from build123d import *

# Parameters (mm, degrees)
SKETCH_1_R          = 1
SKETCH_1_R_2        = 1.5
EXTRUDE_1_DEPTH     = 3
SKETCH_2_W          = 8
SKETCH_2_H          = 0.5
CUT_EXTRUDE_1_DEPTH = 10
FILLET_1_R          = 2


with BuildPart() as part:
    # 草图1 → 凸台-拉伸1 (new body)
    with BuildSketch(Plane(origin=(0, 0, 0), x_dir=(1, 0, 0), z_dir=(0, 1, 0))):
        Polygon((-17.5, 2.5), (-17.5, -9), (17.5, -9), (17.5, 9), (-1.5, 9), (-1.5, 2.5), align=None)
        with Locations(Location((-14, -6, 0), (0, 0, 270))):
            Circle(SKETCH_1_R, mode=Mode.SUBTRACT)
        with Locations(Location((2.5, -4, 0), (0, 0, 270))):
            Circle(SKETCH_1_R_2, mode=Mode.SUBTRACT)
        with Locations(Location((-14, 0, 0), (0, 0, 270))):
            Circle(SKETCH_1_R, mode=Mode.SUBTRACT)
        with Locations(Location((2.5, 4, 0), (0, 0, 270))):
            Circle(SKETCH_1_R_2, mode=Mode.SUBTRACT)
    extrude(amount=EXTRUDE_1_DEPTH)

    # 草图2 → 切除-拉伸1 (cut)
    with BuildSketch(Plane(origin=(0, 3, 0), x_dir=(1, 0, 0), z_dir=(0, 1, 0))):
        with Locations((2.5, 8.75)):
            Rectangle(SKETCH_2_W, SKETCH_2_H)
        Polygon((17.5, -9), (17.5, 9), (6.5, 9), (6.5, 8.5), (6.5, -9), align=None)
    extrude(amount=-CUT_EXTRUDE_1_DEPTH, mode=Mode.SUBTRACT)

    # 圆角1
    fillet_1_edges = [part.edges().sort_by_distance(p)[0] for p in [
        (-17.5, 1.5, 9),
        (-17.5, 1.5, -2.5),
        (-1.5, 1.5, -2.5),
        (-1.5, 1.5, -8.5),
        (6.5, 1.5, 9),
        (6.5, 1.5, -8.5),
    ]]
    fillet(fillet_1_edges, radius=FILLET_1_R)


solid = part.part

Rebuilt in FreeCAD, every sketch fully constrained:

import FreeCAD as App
import Part
import Sketcher

V = App.Vector


def edges_at(feature, points):
    """Names of the edges that pass closest to the given points."""
    edges = feature.Shape.Edges
    near = lambda p: min(range(len(edges)), key=lambda i: edges[i].distToShape(Part.Vertex(*p))[0])
    return sorted({f"Edge{near(p) + 1}" for p in points})


def add_polygon(sketch, points):
    """Adds a closed chain of lines whose ends are joined by coincident constraints."""
    first, n = sketch.GeometryCount, len(points)
    for a, b in zip(points, points[1:] + points[:1]):
        sketch.addGeometry(Part.LineSegment(App.Vector(*a, 0), App.Vector(*b, 0)), False)
    for i in range(n):
        sketch.addConstraint(Sketcher.Constraint("Coincident", first + i, 2, first + (i + 1) % n, 1))

doc = App.newDocument("Part")
body = doc.addObject("PartDesign::Body", "Body")

sketch1 = doc.addObject("Sketcher::SketchObject", "Sketch")
body.addObject(sketch1)
sketch1.AttachmentSupport = (doc.XZ_Plane, [""])
sketch1.MapMode = "FlatFace"
add_polygon(sketch1, [(-17.5, -2.5), (-17.5, 9), (17.5, 9), (17.5, -9), (-1.5, -9), (-1.5, -2.5)])
sketch1.addGeometry(Part.Circle(V(-14, 6, 0), V(0, 0, 1), 1), False)
sketch1.addGeometry(Part.Circle(V(2.5, 4, 0), V(0, 0, 1), 1.5), False)
sketch1.addGeometry(Part.Circle(V(-14, 0, 0), V(0, 0, 1), 1), False)
sketch1.addGeometry(Part.Circle(V(2.5, -4, 0), V(0, 0, 1), 1.5), False)
sketch1.addConstraint([
    Sketcher.Constraint("Vertical", 0),
    Sketcher.Constraint("Horizontal", 1),
    Sketcher.Constraint("Vertical", 2),
    Sketcher.Constraint("Horizontal", 3),
    Sketcher.Constraint("Vertical", 4),
    Sketcher.Constraint("Horizontal", 5),
    Sketcher.Constraint("Equal", 6, 8),
    Sketcher.Constraint("Equal", 7, 9),
    Sketcher.Constraint("Symmetric", 0, 2, 2, 2, -1, 1),
    Sketcher.Constraint("Symmetric", 7, 3, 9, 3, -1),
    Sketcher.Constraint("PointOnObject", 8, 3, -1),
    Sketcher.Constraint("Vertical", 6, 3, 8, 3),
    Sketcher.Constraint("Diameter", 6, 2.0),
    Sketcher.Constraint("Diameter", 7, 3.0),
    Sketcher.Constraint("DistanceX", 1, 1, 1, 2, 35.0),
    Sketcher.Constraint("DistanceX", 3, 2, 3, 1, 19.0),
    Sketcher.Constraint("DistanceY", 2, 2, 2, 1, 18.0),
    Sketcher.Constraint("DistanceY", 0, 1, 0, 2, 11.5),
    Sketcher.Constraint("DistanceX", 6, 3, -1, 1, 14.0),
    Sketcher.Constraint("DistanceY", -1, 1, 6, 3, 6.0),
    Sketcher.Constraint("DistanceY", -1, 1, 7, 3, 4.0),
    Sketcher.Constraint("DistanceX", 0, 2, 7, 3, 20.0),
])
pad1 = doc.addObject("PartDesign::Pad", "Pad")
body.addObject(pad1)
pad1.Profile = sketch1
pad1.Length = 3
pad1.Reversed = True

sketch2 = doc.addObject("Sketcher::SketchObject", "Sketch001")
body.addObject(sketch2)
sketch2.AttachmentSupport = (doc.XZ_Plane, [""])
sketch2.MapMode = "FlatFace"
sketch2.AttachmentOffset = App.Placement(V(0, 0, -3), App.Rotation())
add_polygon(sketch2, [(-1.5, -9), (-1.5, -8.5), (6.5, -8.5), (6.5, 9), (17.5, 9), (17.5, -9)])
sketch2.addConstraint([
    Sketcher.Constraint("Vertical", 0),
    Sketcher.Constraint("Horizontal", 1),
    Sketcher.Constraint("Vertical", 2),
    Sketcher.Constraint("Horizontal", 3),
    Sketcher.Constraint("Vertical", 4),
    Sketcher.Constraint("Horizontal", 5),
    Sketcher.Constraint("DistanceX", 1, 1, 1, 2, 8.0),
    Sketcher.Constraint("DistanceX", 3, 1, 3, 2, 11.0),
    Sketcher.Constraint("DistanceY", 4, 2, 4, 1, 18.0),
    Sketcher.Constraint("DistanceY", 0, 1, 0, 2, 0.5),
    Sketcher.Constraint("DistanceY", -1, 1, 2, 2, 9.0),
    Sketcher.Constraint("DistanceX", 0, 2, -1, 1, 1.5),
])
pocket1 = doc.addObject("PartDesign::Pocket", "Pocket")
body.addObject(pocket1)
pocket1.Profile = sketch2
pocket1.Length = 10
pocket1.Reversed = True
doc.recompute()

fillet = doc.addObject("PartDesign::Fillet", "Fillet")
body.addObject(fillet)
fillet.Base = (pocket1, edges_at(pocket1, [
    (-17.5, 1.5, 9),
    (-17.5, 1.5, -2.5),
    (-1.5, 1.5, -2.5),
    (-1.5, 1.5, -8.5),
    (6.5, 1.5, 9),
    (6.5, 1.5, -8.5),
]))
fillet.Radius = 2

doc.recompute()
